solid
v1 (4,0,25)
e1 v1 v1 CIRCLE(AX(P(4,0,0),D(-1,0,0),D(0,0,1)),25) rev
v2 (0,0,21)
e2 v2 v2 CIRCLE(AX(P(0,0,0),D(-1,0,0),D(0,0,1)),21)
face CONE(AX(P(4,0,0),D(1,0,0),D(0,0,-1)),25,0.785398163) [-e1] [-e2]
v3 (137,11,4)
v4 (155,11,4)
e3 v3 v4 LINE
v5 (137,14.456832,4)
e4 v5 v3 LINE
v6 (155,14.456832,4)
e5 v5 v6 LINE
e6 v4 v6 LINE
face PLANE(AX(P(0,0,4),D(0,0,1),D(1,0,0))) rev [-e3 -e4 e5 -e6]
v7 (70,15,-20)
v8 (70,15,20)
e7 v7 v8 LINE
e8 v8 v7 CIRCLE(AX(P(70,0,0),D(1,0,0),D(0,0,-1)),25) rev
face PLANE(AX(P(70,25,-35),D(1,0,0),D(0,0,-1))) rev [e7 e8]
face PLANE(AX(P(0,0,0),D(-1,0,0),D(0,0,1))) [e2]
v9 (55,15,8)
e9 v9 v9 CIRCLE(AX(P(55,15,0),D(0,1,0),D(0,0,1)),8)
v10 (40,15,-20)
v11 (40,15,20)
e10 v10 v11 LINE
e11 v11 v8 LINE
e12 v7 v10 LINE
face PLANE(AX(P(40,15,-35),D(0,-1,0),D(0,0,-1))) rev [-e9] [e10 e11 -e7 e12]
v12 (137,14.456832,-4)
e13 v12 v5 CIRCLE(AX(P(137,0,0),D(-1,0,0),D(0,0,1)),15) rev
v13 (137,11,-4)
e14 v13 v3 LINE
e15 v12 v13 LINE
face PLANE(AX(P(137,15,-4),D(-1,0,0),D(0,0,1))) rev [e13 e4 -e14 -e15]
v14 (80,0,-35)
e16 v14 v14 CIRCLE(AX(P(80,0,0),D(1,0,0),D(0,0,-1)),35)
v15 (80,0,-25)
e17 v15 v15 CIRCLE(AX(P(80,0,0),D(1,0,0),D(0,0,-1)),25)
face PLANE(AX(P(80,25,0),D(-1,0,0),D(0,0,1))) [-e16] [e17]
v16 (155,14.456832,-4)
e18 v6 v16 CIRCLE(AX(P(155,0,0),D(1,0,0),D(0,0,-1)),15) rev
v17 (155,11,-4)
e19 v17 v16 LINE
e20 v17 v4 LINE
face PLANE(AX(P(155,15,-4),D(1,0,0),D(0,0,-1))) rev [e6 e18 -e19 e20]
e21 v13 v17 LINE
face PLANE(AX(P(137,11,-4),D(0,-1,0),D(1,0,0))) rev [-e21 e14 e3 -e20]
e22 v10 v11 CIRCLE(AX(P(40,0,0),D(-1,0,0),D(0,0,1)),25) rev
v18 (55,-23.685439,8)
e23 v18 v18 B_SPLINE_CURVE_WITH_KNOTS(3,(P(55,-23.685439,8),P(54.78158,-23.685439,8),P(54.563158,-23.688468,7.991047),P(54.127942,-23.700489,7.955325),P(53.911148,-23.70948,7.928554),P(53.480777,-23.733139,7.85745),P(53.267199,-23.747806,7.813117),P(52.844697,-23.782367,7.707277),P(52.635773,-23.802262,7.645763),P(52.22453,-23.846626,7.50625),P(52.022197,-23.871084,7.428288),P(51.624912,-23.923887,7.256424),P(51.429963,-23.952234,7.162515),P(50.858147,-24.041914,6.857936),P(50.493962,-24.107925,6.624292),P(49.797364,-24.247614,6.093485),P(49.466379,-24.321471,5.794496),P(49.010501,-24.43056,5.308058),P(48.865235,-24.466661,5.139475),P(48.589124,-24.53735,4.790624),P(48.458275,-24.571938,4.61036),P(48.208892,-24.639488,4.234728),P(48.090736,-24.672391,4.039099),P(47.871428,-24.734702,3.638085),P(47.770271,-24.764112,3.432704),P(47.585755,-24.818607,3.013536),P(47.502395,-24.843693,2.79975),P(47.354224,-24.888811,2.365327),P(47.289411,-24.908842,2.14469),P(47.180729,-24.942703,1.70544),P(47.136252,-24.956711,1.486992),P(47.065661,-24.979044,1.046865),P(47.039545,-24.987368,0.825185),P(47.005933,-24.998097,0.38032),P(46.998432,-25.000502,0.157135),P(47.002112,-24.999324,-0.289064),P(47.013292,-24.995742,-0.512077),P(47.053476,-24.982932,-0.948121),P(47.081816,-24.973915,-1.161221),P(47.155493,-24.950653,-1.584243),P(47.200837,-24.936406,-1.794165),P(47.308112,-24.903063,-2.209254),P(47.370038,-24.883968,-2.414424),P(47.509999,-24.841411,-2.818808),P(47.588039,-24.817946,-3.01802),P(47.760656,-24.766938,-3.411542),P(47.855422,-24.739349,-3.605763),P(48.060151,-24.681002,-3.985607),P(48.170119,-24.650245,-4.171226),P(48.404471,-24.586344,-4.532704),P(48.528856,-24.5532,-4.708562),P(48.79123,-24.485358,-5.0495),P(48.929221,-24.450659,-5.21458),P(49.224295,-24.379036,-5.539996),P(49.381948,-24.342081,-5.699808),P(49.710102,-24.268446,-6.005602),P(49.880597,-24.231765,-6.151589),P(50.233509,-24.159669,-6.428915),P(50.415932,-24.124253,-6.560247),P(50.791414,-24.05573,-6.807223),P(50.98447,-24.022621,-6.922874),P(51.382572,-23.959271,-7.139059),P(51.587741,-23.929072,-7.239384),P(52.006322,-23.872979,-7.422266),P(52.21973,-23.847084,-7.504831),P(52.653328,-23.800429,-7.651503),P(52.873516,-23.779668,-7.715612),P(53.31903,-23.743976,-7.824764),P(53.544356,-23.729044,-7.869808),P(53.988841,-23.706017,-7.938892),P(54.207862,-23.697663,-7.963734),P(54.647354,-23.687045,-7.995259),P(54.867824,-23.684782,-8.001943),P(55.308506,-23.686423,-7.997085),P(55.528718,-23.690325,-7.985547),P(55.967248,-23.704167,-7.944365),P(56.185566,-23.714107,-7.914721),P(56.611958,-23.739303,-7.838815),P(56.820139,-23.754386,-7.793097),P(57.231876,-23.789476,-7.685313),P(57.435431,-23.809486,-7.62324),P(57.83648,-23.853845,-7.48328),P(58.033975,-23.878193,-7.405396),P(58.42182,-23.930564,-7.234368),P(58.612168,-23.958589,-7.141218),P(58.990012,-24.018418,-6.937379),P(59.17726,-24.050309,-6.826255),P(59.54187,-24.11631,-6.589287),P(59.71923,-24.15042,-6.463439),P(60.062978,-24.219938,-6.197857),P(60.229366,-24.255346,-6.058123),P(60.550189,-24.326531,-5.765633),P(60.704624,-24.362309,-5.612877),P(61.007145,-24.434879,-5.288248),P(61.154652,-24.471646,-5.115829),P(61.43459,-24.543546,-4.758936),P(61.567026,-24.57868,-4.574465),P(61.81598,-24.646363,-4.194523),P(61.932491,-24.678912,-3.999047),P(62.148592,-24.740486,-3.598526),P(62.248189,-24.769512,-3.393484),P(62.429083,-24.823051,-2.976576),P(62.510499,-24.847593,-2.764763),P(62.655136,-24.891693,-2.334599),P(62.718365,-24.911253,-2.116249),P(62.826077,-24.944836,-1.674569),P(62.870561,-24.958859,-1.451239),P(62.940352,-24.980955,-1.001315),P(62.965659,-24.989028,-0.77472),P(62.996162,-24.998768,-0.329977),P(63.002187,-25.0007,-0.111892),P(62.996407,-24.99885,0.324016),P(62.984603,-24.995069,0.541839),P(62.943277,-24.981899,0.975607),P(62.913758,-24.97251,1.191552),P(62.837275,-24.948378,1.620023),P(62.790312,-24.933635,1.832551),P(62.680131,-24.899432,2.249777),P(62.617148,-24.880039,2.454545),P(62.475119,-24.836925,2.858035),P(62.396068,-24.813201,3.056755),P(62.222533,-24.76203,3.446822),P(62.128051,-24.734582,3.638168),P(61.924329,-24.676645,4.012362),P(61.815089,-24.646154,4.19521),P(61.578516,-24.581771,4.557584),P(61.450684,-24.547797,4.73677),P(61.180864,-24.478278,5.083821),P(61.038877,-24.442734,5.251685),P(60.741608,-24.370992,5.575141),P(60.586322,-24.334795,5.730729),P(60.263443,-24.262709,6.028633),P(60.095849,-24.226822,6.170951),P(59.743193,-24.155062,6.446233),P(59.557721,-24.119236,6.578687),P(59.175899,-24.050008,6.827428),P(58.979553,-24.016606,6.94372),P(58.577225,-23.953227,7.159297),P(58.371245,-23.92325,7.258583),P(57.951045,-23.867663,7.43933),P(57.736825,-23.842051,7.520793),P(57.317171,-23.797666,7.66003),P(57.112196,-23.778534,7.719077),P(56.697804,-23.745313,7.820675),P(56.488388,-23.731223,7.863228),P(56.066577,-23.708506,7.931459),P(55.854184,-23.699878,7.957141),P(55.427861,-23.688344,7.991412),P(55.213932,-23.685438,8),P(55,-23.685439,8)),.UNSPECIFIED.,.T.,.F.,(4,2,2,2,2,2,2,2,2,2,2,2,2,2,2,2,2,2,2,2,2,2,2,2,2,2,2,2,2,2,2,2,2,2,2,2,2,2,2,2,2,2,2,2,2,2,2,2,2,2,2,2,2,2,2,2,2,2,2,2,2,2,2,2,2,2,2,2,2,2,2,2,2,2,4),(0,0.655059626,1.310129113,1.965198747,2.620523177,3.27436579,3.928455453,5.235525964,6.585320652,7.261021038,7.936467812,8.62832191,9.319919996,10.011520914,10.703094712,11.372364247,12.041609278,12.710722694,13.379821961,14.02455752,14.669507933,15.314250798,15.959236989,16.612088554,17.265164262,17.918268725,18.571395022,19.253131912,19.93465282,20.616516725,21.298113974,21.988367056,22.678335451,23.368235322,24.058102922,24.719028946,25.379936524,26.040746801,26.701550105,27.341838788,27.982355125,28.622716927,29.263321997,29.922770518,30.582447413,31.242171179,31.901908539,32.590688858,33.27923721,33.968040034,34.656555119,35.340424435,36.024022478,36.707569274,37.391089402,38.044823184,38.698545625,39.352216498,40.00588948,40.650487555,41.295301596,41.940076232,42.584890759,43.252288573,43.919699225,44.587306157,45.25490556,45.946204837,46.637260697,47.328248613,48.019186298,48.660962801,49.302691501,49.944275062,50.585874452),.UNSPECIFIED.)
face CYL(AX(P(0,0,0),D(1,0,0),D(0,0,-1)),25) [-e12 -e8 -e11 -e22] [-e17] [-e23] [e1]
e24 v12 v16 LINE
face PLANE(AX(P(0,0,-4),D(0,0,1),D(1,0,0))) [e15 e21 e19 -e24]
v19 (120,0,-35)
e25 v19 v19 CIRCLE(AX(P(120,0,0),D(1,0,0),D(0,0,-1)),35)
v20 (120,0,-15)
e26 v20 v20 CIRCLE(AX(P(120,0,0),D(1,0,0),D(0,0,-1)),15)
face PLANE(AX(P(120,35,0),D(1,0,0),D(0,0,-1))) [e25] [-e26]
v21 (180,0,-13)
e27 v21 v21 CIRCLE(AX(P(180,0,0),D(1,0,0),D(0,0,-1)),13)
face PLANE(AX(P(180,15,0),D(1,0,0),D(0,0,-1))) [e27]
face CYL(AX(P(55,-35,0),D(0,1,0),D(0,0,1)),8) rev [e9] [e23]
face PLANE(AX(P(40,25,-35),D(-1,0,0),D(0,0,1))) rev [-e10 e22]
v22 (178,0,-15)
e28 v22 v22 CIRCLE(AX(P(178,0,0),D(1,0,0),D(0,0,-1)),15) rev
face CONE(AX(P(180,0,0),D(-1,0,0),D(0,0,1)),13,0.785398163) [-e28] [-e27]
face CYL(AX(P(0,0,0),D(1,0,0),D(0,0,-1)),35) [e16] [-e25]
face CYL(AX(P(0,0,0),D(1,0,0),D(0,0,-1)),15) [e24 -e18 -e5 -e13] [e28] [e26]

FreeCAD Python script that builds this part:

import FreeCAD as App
import Part
import Sketcher
from FreeCAD import Vector
Q = App.Units.Quantity


def edges_at(feature, points):
    """Names of the edges that pass closest to the given points."""
    edges = feature.Shape.Edges
    near = lambda p: min(range(len(edges)), key=lambda i: edges[i].distToShape(Part.Vertex(*p))[0])
    return sorted({f"Edge{near(p) + 1}" for p in points})


def add_polygon(sketch, points):
    """Adds a closed chain of lines whose ends are joined by coincident constraints."""
    first, n = sketch.GeometryCount, len(points)
    for a, b in zip(points, points[1:] + points[:1]):
        sketch.addGeometry(Part.LineSegment(App.Vector(*a, 0), App.Vector(*b, 0)), False)
    for i in range(n):
        sketch.addConstraint(Sketcher.Constraint("Coincident", first + i, 2, first + (i + 1) % n, 1))

doc = App.newDocument("Part")
body = doc.addObject("PartDesign::Body", "Body")

# Sketch on XY plane
sketch1 = body.newObject("Sketcher::SketchObject", "Sketch")
sketch1.AttachmentSupport = (doc.getObject("XY_Plane"), [""])
sketch1.MapMode = "FlatFace"
add_polygon(sketch1, [(0, 25), (0, 0), (180, 0), (180, 15), (120, 15), (120, 35), (80, 35), (80, 25)])  # lines 0-7
sketch1.addConstraint([
    Sketcher.Constraint("Vertical", 0),
    Sketcher.Constraint("Horizontal", 1),
    Sketcher.Constraint("Vertical", 2),
    Sketcher.Constraint("Horizontal", 3),
    Sketcher.Constraint("Vertical", 4),
    Sketcher.Constraint("Horizontal", 5),
    Sketcher.Constraint("Vertical", 6),
    Sketcher.Constraint("Horizontal", 7),
    Sketcher.Constraint("Coincident", 0, 2, -1, 1),
    Sketcher.Constraint("DistanceX", 1, 1, 1, 2, Q("180 mm")),
    Sketcher.Constraint("DistanceX", 3, 2, 3, 1, Q("60 mm")),
    Sketcher.Constraint("DistanceX", 5, 2, 5, 1, Q("40 mm")),
    Sketcher.Constraint("DistanceY", 0, 2, 0, 1, Q("25 mm")),
    Sketcher.Constraint("DistanceY", 2, 1, 2, 2, Q("15 mm")),
    Sketcher.Constraint("DistanceY", 4, 1, 4, 2, Q("20 mm")),
])
revolution = body.newObject("PartDesign::Revolution", "Revolution")
revolution.Profile = sketch1
revolution.ReferenceAxis = (sketch1, ["H_Axis"])
revolution.Angle = 360

# Sketch on XY plane
sketch2 = body.newObject("Sketcher::SketchObject", "Sketch001")
sketch2.AttachmentSupport = (doc.getObject("XY_Plane"), [""])
sketch2.MapMode = "FlatFace"
add_polygon(sketch2, [(40, 25), (40, 15), (70, 15), (70, 25)])  # lines 0-3
sketch2.addConstraint([
    Sketcher.Constraint("Vertical", 0),
    Sketcher.Constraint("Horizontal", 1),
    Sketcher.Constraint("Vertical", 2),
    Sketcher.Constraint("Horizontal", 3),
    Sketcher.Constraint("DistanceX", 1, 1, 1, 2, Q("30 mm")),
    Sketcher.Constraint("DistanceY", 0, 2, 0, 1, Q("10 mm")),
    Sketcher.Constraint("DistanceX", -1, 1, 0, 2, Q("40 mm")),
    Sketcher.Constraint("DistanceY", -1, 1, 0, 2, Q("15 mm")),
])
pocket1 = body.newObject("PartDesign::Pocket", "Pocket")
pocket1.Profile = sketch2
pocket1.Type = "ThroughAll"
pocket1.Midplane = True

# Sketch on XZ plane
sketch3 = body.newObject("Sketcher::SketchObject", "Sketch002")
sketch3.AttachmentSupport = (doc.getObject("XZ_Plane"), [""])
sketch3.MapMode = "FlatFace"
sketch3.AttachmentOffset = App.Placement(Vector(0, 0, -15), App.Rotation())
sketch3.addGeometry(Part.Circle(Vector(55, 0, 0), Vector(0, 0, 1), 8), False)
sketch3.addConstraint([
    Sketcher.Constraint("PointOnObject", 0, 3, -1),
    Sketcher.Constraint("Diameter", 0, Q("16 mm")),
    Sketcher.Constraint("DistanceX", -1, 1, 0, 3, Q("55 mm")),
])
pocket2 = body.newObject("PartDesign::Pocket", "Pocket001")
pocket2.Profile = sketch3
pocket2.Type = "ThroughAll"
pocket2.Reversed = True

# Sketch on XY plane
sketch4 = body.newObject("Sketcher::SketchObject", "Sketch003")
sketch4.AttachmentSupport = (doc.getObject("XY_Plane"), [""])
sketch4.MapMode = "FlatFace"
add_polygon(sketch4, [(137, 15), (137, 11), (155, 11), (155, 15)])  # lines 0-3
sketch4.addConstraint([
    Sketcher.Constraint("Vertical", 0),
    Sketcher.Constraint("Horizontal", 1),
    Sketcher.Constraint("Vertical", 2),
    Sketcher.Constraint("Horizontal", 3),
    Sketcher.Constraint("DistanceX", 1, 1, 1, 2, Q("18 mm")),
    Sketcher.Constraint("DistanceY", 0, 2, 0, 1, Q("4 mm")),
    Sketcher.Constraint("DistanceX", -1, 1, 0, 2, Q("137 mm")),
    Sketcher.Constraint("DistanceY", -1, 1, 0, 2, Q("11 mm")),
])
pocket3 = body.newObject("PartDesign::Pocket", "Pocket002")
pocket3.Profile = sketch4
pocket3.Length = 8
pocket3.Midplane = True
doc.recompute()

chamfer = body.newObject("PartDesign::Chamfer", "Chamfer")
chamfer.Base = (pocket3, edges_at(pocket3, [(180, 0, 15)]))
chamfer.Size = 2
doc.recompute()

chamfer2 = body.newObject("PartDesign::Chamfer", "Chamfer001")
chamfer2.Base = (chamfer, edges_at(chamfer, [(0, 0, 25)]))
chamfer2.Size = 4

doc.recompute()
